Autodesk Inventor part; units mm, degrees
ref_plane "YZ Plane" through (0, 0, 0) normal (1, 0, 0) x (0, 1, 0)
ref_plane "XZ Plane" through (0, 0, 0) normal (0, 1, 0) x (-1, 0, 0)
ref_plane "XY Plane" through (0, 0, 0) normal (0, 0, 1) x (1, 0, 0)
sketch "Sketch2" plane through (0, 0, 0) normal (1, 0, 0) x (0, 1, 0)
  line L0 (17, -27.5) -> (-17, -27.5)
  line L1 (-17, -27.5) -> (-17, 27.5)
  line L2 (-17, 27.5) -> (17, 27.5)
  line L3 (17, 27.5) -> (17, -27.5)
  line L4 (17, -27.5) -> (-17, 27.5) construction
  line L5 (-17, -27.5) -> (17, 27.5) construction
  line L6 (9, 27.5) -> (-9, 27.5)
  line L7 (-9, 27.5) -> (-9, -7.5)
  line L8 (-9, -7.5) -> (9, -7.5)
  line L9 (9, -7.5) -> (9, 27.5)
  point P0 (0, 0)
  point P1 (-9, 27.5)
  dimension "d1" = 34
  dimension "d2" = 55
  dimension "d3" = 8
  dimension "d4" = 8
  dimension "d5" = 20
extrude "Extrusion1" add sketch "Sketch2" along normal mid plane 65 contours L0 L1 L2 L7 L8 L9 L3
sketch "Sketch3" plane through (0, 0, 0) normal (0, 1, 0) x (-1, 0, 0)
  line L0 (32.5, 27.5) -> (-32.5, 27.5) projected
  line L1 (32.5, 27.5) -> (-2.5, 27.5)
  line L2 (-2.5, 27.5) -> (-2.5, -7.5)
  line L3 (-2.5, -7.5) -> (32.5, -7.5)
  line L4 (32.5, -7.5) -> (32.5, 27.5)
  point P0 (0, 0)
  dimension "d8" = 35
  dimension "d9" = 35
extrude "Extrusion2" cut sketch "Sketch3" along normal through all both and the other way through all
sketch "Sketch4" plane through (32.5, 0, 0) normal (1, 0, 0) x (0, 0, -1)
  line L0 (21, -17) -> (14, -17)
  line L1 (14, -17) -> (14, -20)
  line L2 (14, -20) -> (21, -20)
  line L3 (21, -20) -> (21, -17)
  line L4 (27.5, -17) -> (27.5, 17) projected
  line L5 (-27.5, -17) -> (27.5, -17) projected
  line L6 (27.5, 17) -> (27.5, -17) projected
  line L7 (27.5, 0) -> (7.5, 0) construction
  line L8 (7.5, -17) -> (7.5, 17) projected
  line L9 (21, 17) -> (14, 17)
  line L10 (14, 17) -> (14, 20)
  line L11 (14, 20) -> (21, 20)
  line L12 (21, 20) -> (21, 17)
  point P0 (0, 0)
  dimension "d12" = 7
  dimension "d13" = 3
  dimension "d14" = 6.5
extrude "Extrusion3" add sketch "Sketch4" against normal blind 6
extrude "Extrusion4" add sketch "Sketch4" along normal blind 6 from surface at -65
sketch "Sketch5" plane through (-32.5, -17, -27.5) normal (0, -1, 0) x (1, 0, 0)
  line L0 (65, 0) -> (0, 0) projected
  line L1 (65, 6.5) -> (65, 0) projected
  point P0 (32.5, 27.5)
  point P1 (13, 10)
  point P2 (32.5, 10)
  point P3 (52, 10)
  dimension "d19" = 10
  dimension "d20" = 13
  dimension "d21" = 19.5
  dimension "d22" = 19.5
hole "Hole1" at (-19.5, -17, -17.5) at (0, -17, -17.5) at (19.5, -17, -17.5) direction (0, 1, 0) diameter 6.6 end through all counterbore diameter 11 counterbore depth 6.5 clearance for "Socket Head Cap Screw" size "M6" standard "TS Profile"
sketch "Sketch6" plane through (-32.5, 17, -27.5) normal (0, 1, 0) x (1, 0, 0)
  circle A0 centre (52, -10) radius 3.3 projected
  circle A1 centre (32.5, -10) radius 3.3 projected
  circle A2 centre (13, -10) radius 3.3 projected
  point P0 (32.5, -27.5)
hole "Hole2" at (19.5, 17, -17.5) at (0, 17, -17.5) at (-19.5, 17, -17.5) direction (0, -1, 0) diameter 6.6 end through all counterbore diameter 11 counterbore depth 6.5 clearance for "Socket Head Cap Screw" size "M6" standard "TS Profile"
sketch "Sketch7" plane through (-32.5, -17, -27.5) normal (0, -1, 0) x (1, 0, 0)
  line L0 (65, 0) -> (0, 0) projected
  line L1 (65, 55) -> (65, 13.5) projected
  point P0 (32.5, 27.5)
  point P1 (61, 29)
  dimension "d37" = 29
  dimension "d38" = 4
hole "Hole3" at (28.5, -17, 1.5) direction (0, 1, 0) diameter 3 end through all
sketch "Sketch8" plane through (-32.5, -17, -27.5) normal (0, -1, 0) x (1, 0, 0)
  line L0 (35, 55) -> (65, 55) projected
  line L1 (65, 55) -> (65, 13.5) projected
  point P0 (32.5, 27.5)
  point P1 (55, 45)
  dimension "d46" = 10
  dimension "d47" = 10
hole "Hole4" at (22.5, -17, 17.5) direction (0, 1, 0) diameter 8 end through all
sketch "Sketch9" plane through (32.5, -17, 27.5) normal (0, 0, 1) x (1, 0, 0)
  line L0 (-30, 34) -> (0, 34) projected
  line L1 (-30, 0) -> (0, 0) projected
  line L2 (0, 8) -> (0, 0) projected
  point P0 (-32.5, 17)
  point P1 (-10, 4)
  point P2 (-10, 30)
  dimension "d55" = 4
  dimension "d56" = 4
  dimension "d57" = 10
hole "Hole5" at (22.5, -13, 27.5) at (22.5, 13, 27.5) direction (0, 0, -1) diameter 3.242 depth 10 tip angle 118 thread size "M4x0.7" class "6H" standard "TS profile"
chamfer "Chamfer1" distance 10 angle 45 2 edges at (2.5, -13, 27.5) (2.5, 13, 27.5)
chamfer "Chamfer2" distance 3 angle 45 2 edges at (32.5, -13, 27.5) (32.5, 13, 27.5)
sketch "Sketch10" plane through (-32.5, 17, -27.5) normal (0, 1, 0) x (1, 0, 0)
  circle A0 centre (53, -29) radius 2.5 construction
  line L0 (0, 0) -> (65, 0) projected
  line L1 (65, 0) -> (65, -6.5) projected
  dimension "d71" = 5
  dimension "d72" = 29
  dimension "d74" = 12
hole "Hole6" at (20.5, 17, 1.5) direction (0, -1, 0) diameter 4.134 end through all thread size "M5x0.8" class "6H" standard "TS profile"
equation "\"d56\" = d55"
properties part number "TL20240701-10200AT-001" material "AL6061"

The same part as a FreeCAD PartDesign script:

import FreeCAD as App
import Part
import Sketcher
from FreeCAD import Vector


def edges_at(feature, points):
    """Names of the edges that pass closest to the given points."""
    edges = feature.Shape.Edges
    near = lambda p: min(range(len(edges)), key=lambda i: edges[i].distToShape(Part.Vertex(*p))[0])
    return sorted({f"Edge{near(p) + 1}" for p in points})


def add_polygon(sketch, points):
    """Adds a closed chain of lines whose ends are joined by coincident constraints."""
    first, n = sketch.GeometryCount, len(points)
    for a, b in zip(points, points[1:] + points[:1]):
        sketch.addGeometry(Part.LineSegment(App.Vector(*a, 0), App.Vector(*b, 0)), False)
    for i in range(n):
        sketch.addConstraint(Sketcher.Constraint("Coincident", first + i, 2, first + (i + 1) % n, 1))

doc = App.newDocument("Part")
body = doc.addObject("PartDesign::Body", "Body")

sketch1 = body.newObject("Sketcher::SketchObject", "Sketch")
sketch1.AttachmentSupport = (doc.getObject("YZ_Plane"), [""])
sketch1.MapMode = "FlatFace"
add_polygon(sketch1, [(-17, -28), (17, -28), (17, 28), (9, 28), (9, -8), (-9, -8), (-9, 28), (-17, 28)])
sketch1.addConstraint([
    Sketcher.Constraint("Horizontal", 0),
    Sketcher.Constraint("Vertical", 1),
    Sketcher.Constraint("Horizontal", 2),
    Sketcher.Constraint("Vertical", 3),
    Sketcher.Constraint("Horizontal", 4),
    Sketcher.Constraint("Vertical", 5),
    Sketcher.Constraint("Horizontal", 6),
    Sketcher.Constraint("Vertical", 7),
    Sketcher.Constraint("Symmetric", 0, 2, 6, 2, -1, 1),
    Sketcher.Constraint("Symmetric", 2, 2, 5, 2, -2),
    Sketcher.Constraint("DistanceX", 0, 1, 0, 2, 34.0),
    Sketcher.Constraint("DistanceX", 2, 2, 2, 1, 8.0),
    Sketcher.Constraint("DistanceY", 1, 1, 1, 2, 55.0),
    Sketcher.Constraint("DistanceY", 0, 2, 3, 2, 20.0),
])
pad1 = body.newObject("PartDesign::Pad", "Pad")
pad1.Profile = sketch1
pad1.Length = 65
pad1.Midplane = True

sketch2 = body.newObject("Sketcher::SketchObject", "Sketch001")
sketch2.AttachmentSupport = (doc.getObject("XZ_Plane"), [""])
sketch2.MapMode = "FlatFace"
add_polygon(sketch2, [(-32, -8), (-32, 28), (2, 28), (2, -8)])
sketch2.addConstraint([
    Sketcher.Constraint("Vertical", 0),
    Sketcher.Constraint("Horizontal", 1),
    Sketcher.Constraint("Vertical", 2),
    Sketcher.Constraint("Horizontal", 3),
    Sketcher.Constraint("Equal", 3, 0),
    Sketcher.Constraint("DistanceX", 1, 1, 1, 2, 35.0),
    Sketcher.Constraint("DistanceX", 0, 2, -1, 1, 32.5),
    Sketcher.Constraint("DistanceY", -1, 1, 0, 2, 27.5),
])
pocket1 = body.newObject("PartDesign::Pocket", "Pocket")
pocket1.Profile = sketch2
pocket1.Type = "ThroughAll"
pocket1.Midplane = True

sketch3 = body.newObject("Sketcher::SketchObject", "Sketch002")
sketch3.AttachmentSupport = (doc.getObject("YZ_Plane"), [""])
sketch3.MapMode = "FlatFace"
sketch3.AttachmentOffset = App.Placement(Vector(0, 0, 32.5), App.Rotation())
add_polygon(sketch3, [(-20, -21), (-17, -21), (-17, -14), (-20, -14)])
add_polygon(sketch3, [(17, -14), (17, -21), (20, -21), (20, -14)])
sketch3.addConstraint([
    Sketcher.Constraint("Horizontal", 0),
    Sketcher.Constraint("Vertical", 1),
    Sketcher.Constraint("Horizontal", 2),
    Sketcher.Constraint("Vertical", 3),
    Sketcher.Constraint("Vertical", 4),
    Sketcher.Constraint("Horizontal", 5),
    Sketcher.Constraint("Vertical", 6),
    Sketcher.Constraint("Horizontal", 7),
    Sketcher.Constraint("Symmetric", 0, 2, 4, 2, -2),
    Sketcher.Constraint("Symmetric", 2, 2, 6, 2, -2),
    Sketcher.Constraint("DistanceX", 0, 1, 0, 2, 3.0),
    Sketcher.Constraint("DistanceY", 1, 1, 1, 2, 7.0),
    Sketcher.Constraint("DistanceX", 0, 2, -1, 1, 17.0),
    Sketcher.Constraint("DistanceY", 0, 2, -1, 1, 21.0),
])
pad2 = body.newObject("PartDesign::Pad", "Pad001")
pad2.Profile = sketch3
pad2.Length = 6
pad2.Reversed = True

sketch4 = body.newObject("Sketcher::SketchObject", "Sketch003")
sketch4.AttachmentSupport = (doc.getObject("YZ_Plane"), [""])
sketch4.MapMode = "FlatFace"
sketch4.AttachmentOffset = App.Placement(Vector(0, 0, -32.5), App.Rotation())
add_polygon(sketch4, [(-20, -21), (-17, -21), (-17, -14), (-20, -14)])
add_polygon(sketch4, [(17, -14), (17, -21), (20, -21), (20, -14)])
sketch4.addConstraint([
    Sketcher.Constraint("Horizontal", 0),
    Sketcher.Constraint("Vertical", 1),
    Sketcher.Constraint("Horizontal", 2),
    Sketcher.Constraint("Vertical", 3),
    Sketcher.Constraint("Vertical", 4),
    Sketcher.Constraint("Horizontal", 5),
    Sketcher.Constraint("Vertical", 6),
    Sketcher.Constraint("Horizontal", 7),
    Sketcher.Constraint("Symmetric", 0, 2, 4, 2, -2),
    Sketcher.Constraint("Symmetric", 2, 2, 6, 2, -2),
    Sketcher.Constraint("DistanceX", 0, 1, 0, 2, 3.0),
    Sketcher.Constraint("DistanceY", 1, 1, 1, 2, 7.0),
    Sketcher.Constraint("DistanceX", 0, 2, -1, 1, 17.0),
    Sketcher.Constraint("DistanceY", 0, 2, -1, 1, 21.0),
])
pad3 = body.newObject("PartDesign::Pad", "Pad002")
pad3.Profile = sketch4
pad3.Length = 6

sketch5 = body.newObject("Sketcher::SketchObject", "Sketch004")
sketch5.AttachmentSupport = (doc.getObject("XZ_Plane"), [""])
sketch5.MapMode = "FlatFace"
sketch5.AttachmentOffset = App.Placement(Vector(0, 0, 17), App.Rotation())
sketch5.addGeometry([
    Part.Circle(Vector(-19.5, -17.5, 0), Vector(0, 0, 1), 3.3),
    Part.Circle(Vector(0, -17.5, 0), Vector(0, 0, 1), 3.3),
    Part.Circle(Vector(19.5, -17.5, 0), Vector(0, 0, 1), 3.3),
], False)
sketch5.addConstraint([
    Sketcher.Constraint("Equal", 0, 1),
    Sketcher.Constraint("Equal", 1, 2),
    Sketcher.Constraint("Symmetric", 0, 3, 2, 3, -2),
    Sketcher.Constraint("PointOnObject", 1, 3, -2),
    Sketcher.Constraint("Horizontal", 0, 3, 1, 3),
    Sketcher.Constraint("Diameter", 0, 6.6),
    Sketcher.Constraint("DistanceX", 0, 3, 2, 3, 39.0),
    Sketcher.Constraint("DistanceY", 0, 3, -1, 1, 17.5),
])
doc.recompute()
hole = body.newObject("PartDesign::Hole", "Hole")
hole.Profile = sketch5
hole.ThreadType = "None"
hole.Diameter = 6.6
hole.DepthType = "ThroughAll"
hole.HoleCutType = "Counterbore"
hole.HoleCutDiameter = 11
hole.HoleCutDepth = 6.5

sketch6 = body.newObject("Sketcher::SketchObject", "Sketch005")
sketch6.AttachmentSupport = (doc.getObject("XZ_Plane"), [""])
sketch6.MapMode = "FlatFace"
sketch6.AttachmentOffset = App.Placement(Vector(0, 0, -17), App.Rotation())
sketch6.addGeometry([
    Part.Circle(Vector(19.5, -17.5, 0), Vector(0, 0, 1), 3.3),
    Part.Circle(Vector(0, -17.5, 0), Vector(0, 0, 1), 3.3),
    Part.Circle(Vector(-19.5, -17.5, 0), Vector(0, 0, 1), 3.3),
], False)
sketch6.addConstraint([
    Sketcher.Constraint("Equal", 0, 1),
    Sketcher.Constraint("Equal", 1, 2),
    Sketcher.Constraint("Symmetric", 0, 3, 2, 3, -2),
    Sketcher.Constraint("PointOnObject", 1, 3, -2),
    Sketcher.Constraint("Horizontal", 0, 3, 1, 3),
    Sketcher.Constraint("Diameter", 0, 6.6),
    Sketcher.Constraint("DistanceX", 2, 3, 0, 3, 39.0),
    Sketcher.Constraint("DistanceY", 0, 3, -1, 1, 17.5),
])
doc.recompute()
hole2 = body.newObject("PartDesign::Hole", "Hole001")
hole2.Profile = sketch6
hole2.ThreadType = "None"
hole2.Diameter = 6.6
hole2.DepthType = "ThroughAll"
hole2.HoleCutType = "Counterbore"
hole2.HoleCutDiameter = 11
hole2.HoleCutDepth = 6.5
hole2.Reversed = True

sketch7 = body.newObject("Sketcher::SketchObject", "Sketch006")
sketch7.AttachmentSupport = (doc.getObject("XZ_Plane"), [""])
sketch7.MapMode = "FlatFace"
sketch7.AttachmentOffset = App.Placement(Vector(0, 0, 17), App.Rotation())
sketch7.addGeometry(Part.Circle(Vector(28.5, 1.5, 0), Vector(0, 0, 1), 1.5), False)
sketch7.addConstraint([
    Sketcher.Constraint("Diameter", 0, 3.0),
    Sketcher.Constraint("DistanceX", -1, 1, 0, 3, 28.5),
    Sketcher.Constraint("DistanceY", -1, 1, 0, 3, 1.5),
])
doc.recompute()
hole3 = body.newObject("PartDesign::Hole", "Hole002")
hole3.Profile = sketch7
hole3.ThreadType = "None"
hole3.Diameter = 3
hole3.DepthType = "ThroughAll"

sketch8 = body.newObject("Sketcher::SketchObject", "Sketch007")
sketch8.AttachmentSupport = (doc.getObject("XZ_Plane"), [""])
sketch8.MapMode = "FlatFace"
sketch8.AttachmentOffset = App.Placement(Vector(0, 0, 17), App.Rotation())
sketch8.addGeometry(Part.Circle(Vector(22.5, 17.5, 0), Vector(0, 0, 1), 4), False)
sketch8.addConstraint([
    Sketcher.Constraint("Diameter", 0, 8.0),
    Sketcher.Constraint("DistanceX", -1, 1, 0, 3, 22.5),
    Sketcher.Constraint("DistanceY", -1, 1, 0, 3, 17.5),
])
doc.recompute()
hole4 = body.newObject("PartDesign::Hole", "Hole003")
hole4.Profile = sketch8
hole4.ThreadType = "None"
hole4.Diameter = 8
hole4.DepthType = "ThroughAll"

sketch9 = body.newObject("Sketcher::SketchObject", "Sketch008")
sketch9.AttachmentSupport = (doc.getObject("XY_Plane"), [""])
sketch9.MapMode = "FlatFace"
sketch9.AttachmentOffset = App.Placement(Vector(0, 0, 27.5), App.Rotation())
sketch9.addGeometry([
    Part.Circle(Vector(22.5, -13, 0), Vector(0, 0, 1), 1.6),
    Part.Circle(Vector(22.5, 13, 0), Vector(0, 0, 1), 1.6),
], False)
sketch9.addConstraint([
    Sketcher.Constraint("Equal", 0, 1),
    Sketcher.Constraint("Symmetric", 0, 3, 1, 3, -1),
    Sketcher.Constraint("Diameter", 0, 3.242),
    Sketcher.Constraint("DistanceY", 0, 3, -1, 1, 13.0),
    Sketcher.Constraint("DistanceX", -1, 1, 0, 3, 22.5),
])
doc.recompute()
hole5 = body.newObject("PartDesign::Hole", "Hole004")
hole5.Profile = sketch9
hole5.ThreadType = "None"
hole5.Diameter = 3.242
hole5.DepthType = "Dimension"
hole5.Depth = 10
hole5.DrillPoint = "Angled"
hole5.DrillPointAngle = 118
doc.recompute()

chamfer = body.newObject("PartDesign::Chamfer", "Chamfer")
chamfer.Base = (hole5, edges_at(hole5, [(2.5, -13, 27.5), (2.5, 13, 27.5)]))
chamfer.Size = 10
doc.recompute()

chamfer2 = body.newObject("PartDesign::Chamfer", "Chamfer001")
chamfer2.Base = (chamfer, edges_at(chamfer, [(32.5, -13, 27.5), (32.5, 13, 27.5)]))
chamfer2.Size = 3

sketch10 = body.newObject("Sketcher::SketchObject", "Sketch009")
sketch10.AttachmentSupport = (doc.getObject("XZ_Plane"), [""])
sketch10.MapMode = "FlatFace"
sketch10.AttachmentOffset = App.Placement(Vector(0, 0, -17), App.Rotation())
sketch10.addGeometry(Part.Circle(Vector(20.5, 1.5, 0), Vector(0, 0, 1), 2.1), False)
sketch10.addConstraint([
    Sketcher.Constraint("Diameter", 0, 4.134),
    Sketcher.Constraint("DistanceX", -1, 1, 0, 3, 20.5),
    Sketcher.Constraint("DistanceY", -1, 1, 0, 3, 1.5),
])
doc.recompute()
hole6 = body.newObject("PartDesign::Hole", "Hole005")
hole6.Profile = sketch10
hole6.ThreadType = "None"
hole6.Diameter = 4.134
hole6.DepthType = "ThroughAll"
hole6.Reversed = True

doc.recompute()
